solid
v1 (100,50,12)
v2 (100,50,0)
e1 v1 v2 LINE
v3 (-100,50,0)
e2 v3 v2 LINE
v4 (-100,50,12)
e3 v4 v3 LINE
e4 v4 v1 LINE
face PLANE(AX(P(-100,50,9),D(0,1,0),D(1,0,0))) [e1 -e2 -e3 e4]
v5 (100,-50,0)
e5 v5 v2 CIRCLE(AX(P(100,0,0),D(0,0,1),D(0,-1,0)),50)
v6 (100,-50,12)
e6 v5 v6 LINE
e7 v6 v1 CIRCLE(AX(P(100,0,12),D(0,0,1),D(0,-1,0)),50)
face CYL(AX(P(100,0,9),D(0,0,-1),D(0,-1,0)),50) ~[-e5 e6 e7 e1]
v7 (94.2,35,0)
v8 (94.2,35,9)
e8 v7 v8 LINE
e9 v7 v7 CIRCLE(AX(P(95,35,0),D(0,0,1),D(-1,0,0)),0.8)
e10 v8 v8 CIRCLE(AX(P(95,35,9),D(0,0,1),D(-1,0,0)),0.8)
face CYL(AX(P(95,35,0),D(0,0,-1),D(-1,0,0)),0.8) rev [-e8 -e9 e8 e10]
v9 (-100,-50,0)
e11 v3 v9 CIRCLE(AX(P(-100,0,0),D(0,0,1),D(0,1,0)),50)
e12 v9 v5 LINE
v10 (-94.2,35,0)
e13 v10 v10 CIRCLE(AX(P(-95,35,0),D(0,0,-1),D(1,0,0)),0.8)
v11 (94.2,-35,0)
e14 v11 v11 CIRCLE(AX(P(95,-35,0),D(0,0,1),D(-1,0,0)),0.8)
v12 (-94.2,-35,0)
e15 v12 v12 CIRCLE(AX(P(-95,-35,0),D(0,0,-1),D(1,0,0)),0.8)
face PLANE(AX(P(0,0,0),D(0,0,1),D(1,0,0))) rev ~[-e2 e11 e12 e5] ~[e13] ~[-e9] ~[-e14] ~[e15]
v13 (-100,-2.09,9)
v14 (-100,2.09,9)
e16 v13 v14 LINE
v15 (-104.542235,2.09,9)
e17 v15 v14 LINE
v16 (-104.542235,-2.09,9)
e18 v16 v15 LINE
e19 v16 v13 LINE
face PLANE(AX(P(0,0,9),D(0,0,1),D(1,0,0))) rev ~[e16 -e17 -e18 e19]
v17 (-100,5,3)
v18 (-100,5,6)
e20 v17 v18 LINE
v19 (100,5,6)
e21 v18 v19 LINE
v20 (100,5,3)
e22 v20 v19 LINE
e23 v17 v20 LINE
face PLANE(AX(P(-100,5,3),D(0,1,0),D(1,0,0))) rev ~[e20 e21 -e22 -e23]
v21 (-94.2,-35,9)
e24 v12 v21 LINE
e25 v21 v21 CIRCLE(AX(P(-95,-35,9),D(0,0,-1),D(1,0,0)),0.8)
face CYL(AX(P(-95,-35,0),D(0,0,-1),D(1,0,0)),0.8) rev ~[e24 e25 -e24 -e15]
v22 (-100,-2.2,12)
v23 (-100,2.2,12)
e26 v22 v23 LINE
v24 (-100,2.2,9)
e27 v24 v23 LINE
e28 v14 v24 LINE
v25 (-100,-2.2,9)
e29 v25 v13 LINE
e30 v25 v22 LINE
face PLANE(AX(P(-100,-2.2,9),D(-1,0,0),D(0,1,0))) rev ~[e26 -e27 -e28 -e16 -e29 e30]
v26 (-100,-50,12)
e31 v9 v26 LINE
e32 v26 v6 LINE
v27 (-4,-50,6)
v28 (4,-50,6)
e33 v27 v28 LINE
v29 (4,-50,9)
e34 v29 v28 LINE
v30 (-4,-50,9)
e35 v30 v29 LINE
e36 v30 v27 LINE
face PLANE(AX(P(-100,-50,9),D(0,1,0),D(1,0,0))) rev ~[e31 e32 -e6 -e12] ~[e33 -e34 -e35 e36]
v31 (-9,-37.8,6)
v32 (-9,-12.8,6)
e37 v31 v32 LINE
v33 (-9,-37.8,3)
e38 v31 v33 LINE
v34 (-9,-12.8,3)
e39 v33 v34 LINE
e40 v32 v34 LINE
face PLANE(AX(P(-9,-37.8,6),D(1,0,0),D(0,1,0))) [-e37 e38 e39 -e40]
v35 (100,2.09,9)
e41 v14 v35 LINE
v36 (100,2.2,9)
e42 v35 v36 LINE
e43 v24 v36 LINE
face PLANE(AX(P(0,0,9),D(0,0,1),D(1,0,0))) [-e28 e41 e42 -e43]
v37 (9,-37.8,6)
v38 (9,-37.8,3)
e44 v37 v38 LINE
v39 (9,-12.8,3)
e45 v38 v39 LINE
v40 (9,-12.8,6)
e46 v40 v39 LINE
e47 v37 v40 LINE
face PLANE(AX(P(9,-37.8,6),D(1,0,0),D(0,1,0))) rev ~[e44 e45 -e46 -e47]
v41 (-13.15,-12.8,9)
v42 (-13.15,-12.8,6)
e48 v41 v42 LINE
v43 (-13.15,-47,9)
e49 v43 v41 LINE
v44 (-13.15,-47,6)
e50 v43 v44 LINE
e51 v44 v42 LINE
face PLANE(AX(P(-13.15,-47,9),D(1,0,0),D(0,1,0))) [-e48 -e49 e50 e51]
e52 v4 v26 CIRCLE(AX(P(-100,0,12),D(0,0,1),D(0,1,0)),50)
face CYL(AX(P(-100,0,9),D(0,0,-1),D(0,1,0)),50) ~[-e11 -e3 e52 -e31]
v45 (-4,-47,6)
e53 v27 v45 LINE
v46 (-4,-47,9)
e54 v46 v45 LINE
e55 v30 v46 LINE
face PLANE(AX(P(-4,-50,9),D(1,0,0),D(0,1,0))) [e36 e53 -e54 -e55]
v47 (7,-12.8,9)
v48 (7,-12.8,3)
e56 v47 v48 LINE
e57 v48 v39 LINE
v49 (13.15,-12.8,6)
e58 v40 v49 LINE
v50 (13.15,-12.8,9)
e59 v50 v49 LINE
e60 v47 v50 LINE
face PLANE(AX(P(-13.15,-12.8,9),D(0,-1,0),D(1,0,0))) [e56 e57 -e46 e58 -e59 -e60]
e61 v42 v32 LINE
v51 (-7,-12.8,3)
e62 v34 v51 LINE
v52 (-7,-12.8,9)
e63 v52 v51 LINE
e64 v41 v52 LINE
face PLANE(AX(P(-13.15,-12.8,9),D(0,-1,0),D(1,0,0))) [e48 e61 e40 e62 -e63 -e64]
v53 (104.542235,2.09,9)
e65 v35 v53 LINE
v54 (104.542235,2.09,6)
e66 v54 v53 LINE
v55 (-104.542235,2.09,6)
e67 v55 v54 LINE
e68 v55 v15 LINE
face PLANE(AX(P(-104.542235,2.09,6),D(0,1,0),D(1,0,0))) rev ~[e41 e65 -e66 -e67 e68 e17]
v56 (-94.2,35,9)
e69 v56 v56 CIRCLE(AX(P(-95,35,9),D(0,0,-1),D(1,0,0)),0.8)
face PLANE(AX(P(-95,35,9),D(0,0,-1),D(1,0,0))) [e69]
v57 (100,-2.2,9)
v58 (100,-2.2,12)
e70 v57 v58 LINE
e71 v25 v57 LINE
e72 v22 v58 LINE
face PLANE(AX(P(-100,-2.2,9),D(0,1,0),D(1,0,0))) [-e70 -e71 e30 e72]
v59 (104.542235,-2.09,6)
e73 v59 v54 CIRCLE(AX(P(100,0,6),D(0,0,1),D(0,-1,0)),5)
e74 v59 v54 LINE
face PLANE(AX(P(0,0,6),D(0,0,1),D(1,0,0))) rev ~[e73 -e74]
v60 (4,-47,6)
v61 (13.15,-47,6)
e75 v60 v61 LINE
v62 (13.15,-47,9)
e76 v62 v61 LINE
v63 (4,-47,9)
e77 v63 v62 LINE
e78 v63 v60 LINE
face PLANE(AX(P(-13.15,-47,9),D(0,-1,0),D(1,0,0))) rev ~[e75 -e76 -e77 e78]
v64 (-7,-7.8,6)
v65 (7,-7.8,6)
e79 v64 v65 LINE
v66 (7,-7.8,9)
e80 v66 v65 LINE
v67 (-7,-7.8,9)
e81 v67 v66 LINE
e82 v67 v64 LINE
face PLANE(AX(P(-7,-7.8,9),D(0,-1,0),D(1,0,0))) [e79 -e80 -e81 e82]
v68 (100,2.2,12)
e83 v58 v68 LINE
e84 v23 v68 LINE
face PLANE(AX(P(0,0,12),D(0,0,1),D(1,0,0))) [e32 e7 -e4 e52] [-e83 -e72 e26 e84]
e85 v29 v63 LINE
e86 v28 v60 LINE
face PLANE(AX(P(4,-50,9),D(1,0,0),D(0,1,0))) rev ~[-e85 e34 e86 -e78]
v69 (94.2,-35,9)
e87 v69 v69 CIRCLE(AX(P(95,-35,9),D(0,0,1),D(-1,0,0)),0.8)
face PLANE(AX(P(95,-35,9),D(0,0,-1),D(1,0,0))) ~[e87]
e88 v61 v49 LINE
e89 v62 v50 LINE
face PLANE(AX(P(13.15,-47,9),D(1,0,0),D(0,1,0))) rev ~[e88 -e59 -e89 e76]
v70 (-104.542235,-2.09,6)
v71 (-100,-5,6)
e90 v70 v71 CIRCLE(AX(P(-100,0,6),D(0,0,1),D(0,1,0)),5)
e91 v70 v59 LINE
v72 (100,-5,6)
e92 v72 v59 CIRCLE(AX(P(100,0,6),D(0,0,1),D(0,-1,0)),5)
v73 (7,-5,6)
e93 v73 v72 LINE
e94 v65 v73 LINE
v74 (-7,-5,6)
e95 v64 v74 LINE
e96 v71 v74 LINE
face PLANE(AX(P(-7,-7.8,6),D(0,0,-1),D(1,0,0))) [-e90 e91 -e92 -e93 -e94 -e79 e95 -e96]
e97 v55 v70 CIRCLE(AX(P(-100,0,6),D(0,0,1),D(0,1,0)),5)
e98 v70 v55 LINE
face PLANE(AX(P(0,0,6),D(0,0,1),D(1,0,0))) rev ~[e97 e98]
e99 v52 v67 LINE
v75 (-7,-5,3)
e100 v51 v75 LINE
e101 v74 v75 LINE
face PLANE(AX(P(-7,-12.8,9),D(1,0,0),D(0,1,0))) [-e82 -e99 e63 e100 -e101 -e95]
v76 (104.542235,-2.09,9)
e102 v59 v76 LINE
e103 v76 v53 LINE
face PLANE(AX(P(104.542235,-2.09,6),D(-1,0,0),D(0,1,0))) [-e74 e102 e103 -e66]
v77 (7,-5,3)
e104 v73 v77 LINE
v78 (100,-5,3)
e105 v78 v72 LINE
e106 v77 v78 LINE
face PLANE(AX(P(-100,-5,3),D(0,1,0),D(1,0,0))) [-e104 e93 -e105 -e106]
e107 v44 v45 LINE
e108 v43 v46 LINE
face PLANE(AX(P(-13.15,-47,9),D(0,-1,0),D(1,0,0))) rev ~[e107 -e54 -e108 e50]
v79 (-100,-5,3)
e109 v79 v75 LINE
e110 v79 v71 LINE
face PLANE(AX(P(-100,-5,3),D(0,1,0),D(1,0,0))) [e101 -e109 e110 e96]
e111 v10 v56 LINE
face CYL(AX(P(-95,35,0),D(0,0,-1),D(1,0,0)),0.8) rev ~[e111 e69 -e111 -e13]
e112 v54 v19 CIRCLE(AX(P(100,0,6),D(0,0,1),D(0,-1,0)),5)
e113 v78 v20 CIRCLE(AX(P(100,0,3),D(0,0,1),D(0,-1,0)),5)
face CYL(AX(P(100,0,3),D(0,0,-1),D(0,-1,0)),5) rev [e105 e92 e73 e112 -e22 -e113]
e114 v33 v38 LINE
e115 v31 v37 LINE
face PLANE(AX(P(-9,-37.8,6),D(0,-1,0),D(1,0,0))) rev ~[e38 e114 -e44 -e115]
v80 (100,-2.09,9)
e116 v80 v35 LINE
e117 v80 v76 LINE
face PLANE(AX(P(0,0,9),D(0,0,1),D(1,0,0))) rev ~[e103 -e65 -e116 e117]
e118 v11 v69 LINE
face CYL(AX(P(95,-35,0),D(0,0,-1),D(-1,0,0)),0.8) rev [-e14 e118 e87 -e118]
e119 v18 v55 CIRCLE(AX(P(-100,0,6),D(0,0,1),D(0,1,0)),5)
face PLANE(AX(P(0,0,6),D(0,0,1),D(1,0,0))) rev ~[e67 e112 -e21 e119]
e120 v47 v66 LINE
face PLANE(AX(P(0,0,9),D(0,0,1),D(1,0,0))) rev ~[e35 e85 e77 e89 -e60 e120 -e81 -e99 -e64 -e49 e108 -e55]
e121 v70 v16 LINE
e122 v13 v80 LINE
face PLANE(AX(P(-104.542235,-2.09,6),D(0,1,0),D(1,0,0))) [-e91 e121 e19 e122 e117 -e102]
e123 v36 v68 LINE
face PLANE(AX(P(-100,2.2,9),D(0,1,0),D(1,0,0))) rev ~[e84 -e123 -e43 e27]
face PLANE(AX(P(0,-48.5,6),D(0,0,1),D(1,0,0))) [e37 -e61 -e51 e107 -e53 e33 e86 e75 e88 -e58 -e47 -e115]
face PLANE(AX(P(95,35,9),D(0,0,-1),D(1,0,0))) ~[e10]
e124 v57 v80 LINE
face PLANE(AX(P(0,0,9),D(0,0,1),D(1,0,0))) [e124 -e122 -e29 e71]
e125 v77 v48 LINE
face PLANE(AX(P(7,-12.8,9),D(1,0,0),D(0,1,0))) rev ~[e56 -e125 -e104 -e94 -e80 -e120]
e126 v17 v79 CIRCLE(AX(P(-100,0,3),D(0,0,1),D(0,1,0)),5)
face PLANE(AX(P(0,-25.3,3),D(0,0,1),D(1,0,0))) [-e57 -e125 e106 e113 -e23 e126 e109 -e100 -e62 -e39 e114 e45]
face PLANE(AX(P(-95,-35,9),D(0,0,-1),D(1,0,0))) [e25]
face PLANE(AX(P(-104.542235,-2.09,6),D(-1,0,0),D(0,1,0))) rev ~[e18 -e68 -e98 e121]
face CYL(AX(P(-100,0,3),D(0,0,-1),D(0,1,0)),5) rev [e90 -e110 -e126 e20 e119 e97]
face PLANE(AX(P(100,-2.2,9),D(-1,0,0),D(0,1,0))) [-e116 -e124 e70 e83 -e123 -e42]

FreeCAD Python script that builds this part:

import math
import FreeCAD as App
import Part
import Sketcher

V = App.Vector
Q = App.Units.Quantity


def add_polygon(sketch, points):
    """Adds a closed chain of lines whose ends are joined by coincident constraints."""
    first, n = sketch.GeometryCount, len(points)
    for a, b in zip(points, points[1:] + points[:1]):
        sketch.addGeometry(Part.LineSegment(App.Vector(*a, 0), App.Vector(*b, 0)), False)
    for i in range(n):
        sketch.addConstraint(Sketcher.Constraint("Coincident", first + i, 2, first + (i + 1) % n, 1))

doc = App.newDocument("Part")
body = doc.addObject("PartDesign::Body", "Body")

# Sketch on XY plane
sketch1 = doc.addObject("Sketcher::SketchObject", "Sketch")
body.addObject(sketch1)
sketch1.AttachmentSupport = (doc.XY_Plane, [""])
sketch1.MapMode = "FlatFace"
sketch1.addGeometry([
    Part.ArcOfCircle(Part.Circle(V(-100, 0, 0), V(0, 0, 1), 50), math.radians(90), math.radians(270)),
    Part.LineSegment(V(-100, -50, 0), V(100, -50, 0)),
    Part.ArcOfCircle(Part.Circle(V(100, 0, 0), V(0, 0, 1), 50), math.radians(-90), math.radians(90)),
    Part.LineSegment(V(100, 50, 0), V(-100, 50, 0)),
], False)
sketch1.addConstraint([
    Sketcher.Constraint("Tangent", 0, 2, 1, 1),
    Sketcher.Constraint("Tangent", 1, 2, 2, 1),
    Sketcher.Constraint("Tangent", 2, 2, 3, 1),
    Sketcher.Constraint("Tangent", 3, 2, 0, 1),
    Sketcher.Constraint("Horizontal", 1),
    Sketcher.Constraint("Horizontal", 3),
    Sketcher.Constraint("Symmetric", 0, 3, 2, 3, -1, 1),
    Sketcher.Constraint("Radius", 0, Q("50 mm")),
    Sketcher.Constraint("DistanceX", 1, 1, 1, 2, Q("200 mm")),
])
pad1 = doc.addObject("PartDesign::Pad", "Pad")
body.addObject(pad1)
pad1.Profile = sketch1
pad1.Length = 3

# Sketch on XY plane
sketch2 = doc.addObject("Sketcher::SketchObject", "Sketch001")
body.addObject(sketch2)
sketch2.AttachmentSupport = (doc.XY_Plane, [""])
sketch2.MapMode = "FlatFace"
sketch2.AttachmentOffset = App.Placement(V(0, 0, 3), App.Rotation())
sketch2.addGeometry([
    Part.ArcOfCircle(Part.Circle(V(-100, 0, 0), V(0, 0, 1), 50), math.radians(90), math.radians(270)),  # 0
    Part.LineSegment(V(-100, -50, 0), V(100, -50, 0)),  # 1
    Part.ArcOfCircle(Part.Circle(V(100, 0, 0), V(0, 0, 1), 50), math.radians(-90), math.radians(90)),  # 2
    Part.LineSegment(V(100, 50, 0), V(-100, 50, 0)),  # 3
    Part.ArcOfCircle(Part.Circle(V(-100, 0, 0), V(0, 0, 1), 5), math.radians(90), math.radians(270)),  # 4
    Part.LineSegment(V(-100, 5, 0), V(100, 5, 0)),  # 5
    Part.ArcOfCircle(Part.Circle(V(100, 0, 0), V(0, 0, 1), 5), math.radians(-90), math.radians(90)),  # 6
    Part.LineSegment(V(100, -5, 0), V(-100, -5, 0)),  # 7
], False)
sketch2.addConstraint([
    Sketcher.Constraint("Tangent", 0, 2, 1, 1),
    Sketcher.Constraint("Tangent", 1, 2, 2, 1),
    Sketcher.Constraint("Tangent", 2, 2, 3, 1),
    Sketcher.Constraint("Tangent", 3, 2, 0, 1),
    Sketcher.Constraint("Tangent", 4, 1, 5, 1),
    Sketcher.Constraint("Tangent", 5, 2, 6, 2),
    Sketcher.Constraint("Tangent", 6, 1, 7, 1),
    Sketcher.Constraint("Tangent", 7, 2, 4, 2),
    Sketcher.Constraint("Horizontal", 1),
    Sketcher.Constraint("Horizontal", 3),
    Sketcher.Constraint("Horizontal", 5),
    Sketcher.Constraint("Horizontal", 7),
    Sketcher.Constraint("Coincident", 4, 3, 0, 3),
    Sketcher.Constraint("Symmetric", 0, 3, 2, 3, -1, 1),
    Sketcher.Constraint("Vertical", 6, 3, 1, 2),
    Sketcher.Constraint("Radius", 0, Q("50 mm")),
    Sketcher.Constraint("Radius", 4, Q("5 mm")),
    Sketcher.Constraint("DistanceX", 1, 1, 1, 2, Q("200 mm")),
])
pad2 = doc.addObject("PartDesign::Pad", "Pad001")
body.addObject(pad2)
pad2.Profile = sketch2
pad2.Length = 3

# Sketch on XY plane
sketch3 = doc.addObject("Sketcher::SketchObject", "Sketch002")
body.addObject(sketch3)
sketch3.AttachmentSupport = (doc.XY_Plane, [""])
sketch3.MapMode = "FlatFace"
sketch3.AttachmentOffset = App.Placement(V(0, 0, 6), App.Rotation())
sketch3.addGeometry(Part.ArcOfCircle(Part.Circle(V(-100, 0, 0), V(0, 0, 1), 50), math.radians(90), math.radians(270)), False)  # 0
sketch3.addGeometry(Part.LineSegment(V(-100, -50, 0), V(100, -50, 0)), False)  # 1
sketch3.addGeometry(Part.ArcOfCircle(Part.Circle(V(100, 0, 0), V(0, 0, 1), 50), math.radians(-90), math.radians(90)), False)  # 2
sketch3.addGeometry(Part.LineSegment(V(100, 50, 0), V(-100, 50, 0)), False)  # 3
add_polygon(sketch3, [(104.5, -2.1), (-104.5, -2.1), (-104.5, 2.1), (104.5, 2.1)])  # lines 4-7
sketch3.addConstraint([
    Sketcher.Constraint("Tangent", 0, 2, 1, 1),
    Sketcher.Constraint("Tangent", 1, 2, 2, 1),
    Sketcher.Constraint("Tangent", 2, 2, 3, 1),
    Sketcher.Constraint("Tangent", 3, 2, 0, 1),
    Sketcher.Constraint("Horizontal", 1),
    Sketcher.Constraint("Horizontal", 3),
    Sketcher.Constraint("Horizontal", 4),
    Sketcher.Constraint("Vertical", 5),
    Sketcher.Constraint("Horizontal", 6),
    Sketcher.Constraint("Vertical", 7),
    Sketcher.Constraint("Symmetric", 0, 3, 2, 3, -1, 1),
    Sketcher.Constraint("Symmetric", 4, 2, 6, 2, -1, 1),
    Sketcher.Constraint("Radius", 0, Q("50 mm")),
    Sketcher.Constraint("DistanceX", 1, 1, 1, 2, Q("200 mm")),
    Sketcher.Constraint("DistanceY", 5, 1, 5, 2, Q("4.18 mm")),
    Sketcher.Constraint("DistanceX", 4, 2, 4, 1, Q("209.08447 mm")),
])
pad3 = doc.addObject("PartDesign::Pad", "Pad002")
body.addObject(pad3)
pad3.Profile = sketch3
pad3.Length = 3

# Sketch on XY plane
sketch4 = doc.addObject("Sketcher::SketchObject", "Sketch003")
body.addObject(sketch4)
sketch4.AttachmentSupport = (doc.XY_Plane, [""])
sketch4.MapMode = "FlatFace"
sketch4.AttachmentOffset = App.Placement(V(0, 0, 9), App.Rotation())
add_polygon(sketch4, [(-13, -13), (-13, -47), (13, -47), (13, -13)])  # lines 0-3
sketch4.addConstraint([
    Sketcher.Constraint("Vertical", 0),
    Sketcher.Constraint("Horizontal", 1),
    Sketcher.Constraint("Vertical", 2),
    Sketcher.Constraint("Horizontal", 3),
    Sketcher.Constraint("DistanceX", 1, 1, 1, 2, Q("26.3 mm")),
    Sketcher.Constraint("DistanceY", 0, 2, 0, 1, Q("34.2 mm")),
    Sketcher.Constraint("DistanceY", 0, 2, -1, 1, Q("47 mm")),
    Sketcher.Constraint("DistanceX", 0, 2, -1, 1, Q("13.15 mm")),
])
pocket1 = doc.addObject("PartDesign::Pocket", "Pocket")
body.addObject(pocket1)
pocket1.Profile = sketch4
pocket1.Length = 3

# Sketch on XY plane
sketch5 = doc.addObject("Sketcher::SketchObject", "Sketch004")
body.addObject(sketch5)
sketch5.AttachmentSupport = (doc.XY_Plane, [""])
sketch5.MapMode = "FlatFace"
sketch5.AttachmentOffset = App.Placement(V(0, 0, 6), App.Rotation())
add_polygon(sketch5, [(-9, -13), (-9, -38), (9, -38), (9, -13)])  # lines 0-3
sketch5.addConstraint([
    Sketcher.Constraint("Vertical", 0),
    Sketcher.Constraint("Horizontal", 1),
    Sketcher.Constraint("Vertical", 2),
    Sketcher.Constraint("Horizontal", 3),
    Sketcher.Constraint("DistanceX", 1, 1, 1, 2, Q("18 mm")),
    Sketcher.Constraint("DistanceY", 0, 2, 0, 1, Q("25 mm")),
    Sketcher.Constraint("DistanceX", 0, 2, -1, 1, Q("9 mm")),
    Sketcher.Constraint("DistanceY", 0, 2, -1, 1, Q("37.8 mm")),
])
pocket2 = doc.addObject("PartDesign::Pocket", "Pocket001")
body.addObject(pocket2)
pocket2.Profile = sketch5
pocket2.Length = 3

# Sketch on XY plane
sketch6 = doc.addObject("Sketcher::SketchObject", "Sketch005")
body.addObject(sketch6)
sketch6.AttachmentSupport = (doc.XY_Plane, [""])
sketch6.MapMode = "FlatFace"
sketch6.AttachmentOffset = App.Placement(V(0, 0, 9), App.Rotation())
add_polygon(sketch6, [(-7, -8), (-7, -13), (7, -13), (7, -8)])  # lines 0-3
sketch6.addConstraint([
    Sketcher.Constraint("Vertical", 0),
    Sketcher.Constraint("Horizontal", 1),
    Sketcher.Constraint("Vertical", 2),
    Sketcher.Constraint("Horizontal", 3),
    Sketcher.Constraint("DistanceX", 1, 1, 1, 2, Q("14 mm")),
    Sketcher.Constraint("DistanceY", 0, 2, 0, 1, Q("5 mm")),
    Sketcher.Constraint("DistanceX", 0, 2, -1, 1, Q("7 mm")),
    Sketcher.Constraint("DistanceY", 0, 2, -1, 1, Q("12.8 mm")),
])
pocket3 = doc.addObject("PartDesign::Pocket", "Pocket002")
body.addObject(pocket3)
pocket3.Profile = sketch6
pocket3.Length = 6

# Sketch on XZ plane
sketch7 = doc.addObject("Sketcher::SketchObject", "Sketch006")
body.addObject(sketch7)
sketch7.AttachmentSupport = (doc.XZ_Plane, [""])
sketch7.MapMode = "FlatFace"
sketch7.AttachmentOffset = App.Placement(V(0, 0, 7.8), App.Rotation())
add_polygon(sketch7, [(-7, 6), (-7, 3), (7, 3), (7, 6)])  # lines 0-3
sketch7.addConstraint([
    Sketcher.Constraint("Vertical", 0),
    Sketcher.Constraint("Horizontal", 1),
    Sketcher.Constraint("Vertical", 2),
    Sketcher.Constraint("Horizontal", 3),
    Sketcher.Constraint("DistanceX", 1, 1, 1, 2, Q("14 mm")),
    Sketcher.Constraint("DistanceY", 0, 2, 0, 1, Q("3 mm")),
    Sketcher.Constraint("DistanceX", 0, 2, -1, 1, Q("7 mm")),
    Sketcher.Constraint("DistanceY", -1, 1, 0, 2, Q("3 mm")),
])
pocket4 = doc.addObject("PartDesign::Pocket", "Pocket003")
body.addObject(pocket4)
pocket4.Profile = sketch7
pocket4.Length = 3

# Sketch on XY plane
sketch8 = doc.addObject("Sketcher::SketchObject", "Sketch007")
body.addObject(sketch8)
sketch8.AttachmentSupport = (doc.XY_Plane, [""])
sketch8.MapMode = "FlatFace"
sketch8.AttachmentOffset = App.Placement(V(0, 0, 9), App.Rotation())
add_polygon(sketch8, [(-4, -47), (-4, -50), (4, -50), (4, -47)])  # lines 0-3
sketch8.addConstraint([
    Sketcher.Constraint("Vertical", 0),
    Sketcher.Constraint("Horizontal", 1),
    Sketcher.Constraint("Vertical", 2),
    Sketcher.Constraint("Horizontal", 3),
    Sketcher.Constraint("DistanceX", 1, 1, 1, 2, Q("8 mm")),
    Sketcher.Constraint("DistanceY", 0, 2, 0, 1, Q("3 mm")),
    Sketcher.Constraint("DistanceX", 0, 2, -1, 1, Q("4 mm")),
    Sketcher.Constraint("DistanceY", 0, 2, -1, 1, Q("50 mm")),
])
pocket5 = doc.addObject("PartDesign::Pocket", "Pocket004")
body.addObject(pocket5)
pocket5.Profile = sketch8
pocket5.Length = 3

# Sketch on XY plane
sketch9 = doc.addObject("Sketcher::SketchObject", "Sketch008")
body.addObject(sketch9)
sketch9.AttachmentSupport = (doc.XY_Plane, [""])
sketch9.MapMode = "FlatFace"
sketch9.AttachmentOffset = App.Placement(V(0, 0, 9), App.Rotation())
sketch9.addGeometry(Part.ArcOfCircle(Part.Circle(V(-100, 0, 0), V(0, 0, 1), 50), math.radians(90), math.radians(270)), False)  # 0
sketch9.addGeometry(Part.LineSegment(V(-100, -50, 0), V(100, -50, 0)), False)  # 1
sketch9.addGeometry(Part.ArcOfCircle(Part.Circle(V(100, 0, 0), V(0, 0, 1), 50), math.radians(-90), math.radians(90)), False)  # 2
sketch9.addGeometry(Part.LineSegment(V(100, 50, 0), V(-100, 50, 0)), False)  # 3
add_polygon(sketch9, [(100, -2.2), (-100, -2.2), (-100, 2.2), (100, 2.2)])  # lines 4-7
sketch9.addConstraint([
    Sketcher.Constraint("Tangent", 0, 2, 1, 1),
    Sketcher.Constraint("Tangent", 1, 2, 2, 1),
    Sketcher.Constraint("Tangent", 2, 2, 3, 1),
    Sketcher.Constraint("Tangent", 3, 2, 0, 1),
    Sketcher.Constraint("Horizontal", 1),
    Sketcher.Constraint("Horizontal", 3),
    Sketcher.Constraint("Horizontal", 4),
    Sketcher.Constraint("Vertical", 5),
    Sketcher.Constraint("Horizontal", 6),
    Sketcher.Constraint("Vertical", 7),
    Sketcher.Constraint("Symmetric", 0, 3, 2, 3, -1, 1),
    Sketcher.Constraint("Symmetric", 4, 2, 6, 2, -1, 1),
    Sketcher.Constraint("Vertical", 3, 2, 4, 2),
    Sketcher.Constraint("Radius", 0, Q("50 mm")),
    Sketcher.Constraint("DistanceX", 1, 1, 1, 2, Q("200 mm")),
    Sketcher.Constraint("DistanceY", 5, 1, 5, 2, Q("4.4 mm")),
])
pad4 = doc.addObject("PartDesign::Pad", "Pad003")
body.addObject(pad4)
pad4.Profile = sketch9
pad4.Length = 3

# Sketch on XY plane
sketch10 = doc.addObject("Sketcher::SketchObject", "Sketch009")
body.addObject(sketch10)
sketch10.AttachmentSupport = (doc.XY_Plane, [""])
sketch10.MapMode = "FlatFace"
sketch10.addGeometry([
    Part.Circle(V(-95, -35, 0), V(0, 0, 1), 0.8),
    Part.Circle(V(-95, 35, 0), V(0, 0, 1), 0.8),
], False)
sketch10.addConstraint([
    Sketcher.Constraint("Equal", 0, 1),
    Sketcher.Constraint("Symmetric", 0, 3, 1, 3, -1),
    Sketcher.Constraint("Diameter", 0, Q("1.6 mm")),
    Sketcher.Constraint("DistanceX", 0, 3, -1, 1, Q("95 mm")),
    Sketcher.Constraint("DistanceY", 0, 3, -1, 1, Q("35 mm")),
])
pocket6 = doc.addObject("PartDesign::Pocket", "Pocket005")
body.addObject(pocket6)
pocket6.Profile = sketch10
pocket6.Length = 9
pocket6.Reversed = True
doc.recompute()

mirrored = doc.addObject("PartDesign::Mirrored", "Mirrored")
body.addObject(mirrored)
mirrored.Originals = [pocket6]
mirrored.MirrorPlane = (doc.YZ_Plane, [""])
body.Tip = mirrored

doc.recompute()
